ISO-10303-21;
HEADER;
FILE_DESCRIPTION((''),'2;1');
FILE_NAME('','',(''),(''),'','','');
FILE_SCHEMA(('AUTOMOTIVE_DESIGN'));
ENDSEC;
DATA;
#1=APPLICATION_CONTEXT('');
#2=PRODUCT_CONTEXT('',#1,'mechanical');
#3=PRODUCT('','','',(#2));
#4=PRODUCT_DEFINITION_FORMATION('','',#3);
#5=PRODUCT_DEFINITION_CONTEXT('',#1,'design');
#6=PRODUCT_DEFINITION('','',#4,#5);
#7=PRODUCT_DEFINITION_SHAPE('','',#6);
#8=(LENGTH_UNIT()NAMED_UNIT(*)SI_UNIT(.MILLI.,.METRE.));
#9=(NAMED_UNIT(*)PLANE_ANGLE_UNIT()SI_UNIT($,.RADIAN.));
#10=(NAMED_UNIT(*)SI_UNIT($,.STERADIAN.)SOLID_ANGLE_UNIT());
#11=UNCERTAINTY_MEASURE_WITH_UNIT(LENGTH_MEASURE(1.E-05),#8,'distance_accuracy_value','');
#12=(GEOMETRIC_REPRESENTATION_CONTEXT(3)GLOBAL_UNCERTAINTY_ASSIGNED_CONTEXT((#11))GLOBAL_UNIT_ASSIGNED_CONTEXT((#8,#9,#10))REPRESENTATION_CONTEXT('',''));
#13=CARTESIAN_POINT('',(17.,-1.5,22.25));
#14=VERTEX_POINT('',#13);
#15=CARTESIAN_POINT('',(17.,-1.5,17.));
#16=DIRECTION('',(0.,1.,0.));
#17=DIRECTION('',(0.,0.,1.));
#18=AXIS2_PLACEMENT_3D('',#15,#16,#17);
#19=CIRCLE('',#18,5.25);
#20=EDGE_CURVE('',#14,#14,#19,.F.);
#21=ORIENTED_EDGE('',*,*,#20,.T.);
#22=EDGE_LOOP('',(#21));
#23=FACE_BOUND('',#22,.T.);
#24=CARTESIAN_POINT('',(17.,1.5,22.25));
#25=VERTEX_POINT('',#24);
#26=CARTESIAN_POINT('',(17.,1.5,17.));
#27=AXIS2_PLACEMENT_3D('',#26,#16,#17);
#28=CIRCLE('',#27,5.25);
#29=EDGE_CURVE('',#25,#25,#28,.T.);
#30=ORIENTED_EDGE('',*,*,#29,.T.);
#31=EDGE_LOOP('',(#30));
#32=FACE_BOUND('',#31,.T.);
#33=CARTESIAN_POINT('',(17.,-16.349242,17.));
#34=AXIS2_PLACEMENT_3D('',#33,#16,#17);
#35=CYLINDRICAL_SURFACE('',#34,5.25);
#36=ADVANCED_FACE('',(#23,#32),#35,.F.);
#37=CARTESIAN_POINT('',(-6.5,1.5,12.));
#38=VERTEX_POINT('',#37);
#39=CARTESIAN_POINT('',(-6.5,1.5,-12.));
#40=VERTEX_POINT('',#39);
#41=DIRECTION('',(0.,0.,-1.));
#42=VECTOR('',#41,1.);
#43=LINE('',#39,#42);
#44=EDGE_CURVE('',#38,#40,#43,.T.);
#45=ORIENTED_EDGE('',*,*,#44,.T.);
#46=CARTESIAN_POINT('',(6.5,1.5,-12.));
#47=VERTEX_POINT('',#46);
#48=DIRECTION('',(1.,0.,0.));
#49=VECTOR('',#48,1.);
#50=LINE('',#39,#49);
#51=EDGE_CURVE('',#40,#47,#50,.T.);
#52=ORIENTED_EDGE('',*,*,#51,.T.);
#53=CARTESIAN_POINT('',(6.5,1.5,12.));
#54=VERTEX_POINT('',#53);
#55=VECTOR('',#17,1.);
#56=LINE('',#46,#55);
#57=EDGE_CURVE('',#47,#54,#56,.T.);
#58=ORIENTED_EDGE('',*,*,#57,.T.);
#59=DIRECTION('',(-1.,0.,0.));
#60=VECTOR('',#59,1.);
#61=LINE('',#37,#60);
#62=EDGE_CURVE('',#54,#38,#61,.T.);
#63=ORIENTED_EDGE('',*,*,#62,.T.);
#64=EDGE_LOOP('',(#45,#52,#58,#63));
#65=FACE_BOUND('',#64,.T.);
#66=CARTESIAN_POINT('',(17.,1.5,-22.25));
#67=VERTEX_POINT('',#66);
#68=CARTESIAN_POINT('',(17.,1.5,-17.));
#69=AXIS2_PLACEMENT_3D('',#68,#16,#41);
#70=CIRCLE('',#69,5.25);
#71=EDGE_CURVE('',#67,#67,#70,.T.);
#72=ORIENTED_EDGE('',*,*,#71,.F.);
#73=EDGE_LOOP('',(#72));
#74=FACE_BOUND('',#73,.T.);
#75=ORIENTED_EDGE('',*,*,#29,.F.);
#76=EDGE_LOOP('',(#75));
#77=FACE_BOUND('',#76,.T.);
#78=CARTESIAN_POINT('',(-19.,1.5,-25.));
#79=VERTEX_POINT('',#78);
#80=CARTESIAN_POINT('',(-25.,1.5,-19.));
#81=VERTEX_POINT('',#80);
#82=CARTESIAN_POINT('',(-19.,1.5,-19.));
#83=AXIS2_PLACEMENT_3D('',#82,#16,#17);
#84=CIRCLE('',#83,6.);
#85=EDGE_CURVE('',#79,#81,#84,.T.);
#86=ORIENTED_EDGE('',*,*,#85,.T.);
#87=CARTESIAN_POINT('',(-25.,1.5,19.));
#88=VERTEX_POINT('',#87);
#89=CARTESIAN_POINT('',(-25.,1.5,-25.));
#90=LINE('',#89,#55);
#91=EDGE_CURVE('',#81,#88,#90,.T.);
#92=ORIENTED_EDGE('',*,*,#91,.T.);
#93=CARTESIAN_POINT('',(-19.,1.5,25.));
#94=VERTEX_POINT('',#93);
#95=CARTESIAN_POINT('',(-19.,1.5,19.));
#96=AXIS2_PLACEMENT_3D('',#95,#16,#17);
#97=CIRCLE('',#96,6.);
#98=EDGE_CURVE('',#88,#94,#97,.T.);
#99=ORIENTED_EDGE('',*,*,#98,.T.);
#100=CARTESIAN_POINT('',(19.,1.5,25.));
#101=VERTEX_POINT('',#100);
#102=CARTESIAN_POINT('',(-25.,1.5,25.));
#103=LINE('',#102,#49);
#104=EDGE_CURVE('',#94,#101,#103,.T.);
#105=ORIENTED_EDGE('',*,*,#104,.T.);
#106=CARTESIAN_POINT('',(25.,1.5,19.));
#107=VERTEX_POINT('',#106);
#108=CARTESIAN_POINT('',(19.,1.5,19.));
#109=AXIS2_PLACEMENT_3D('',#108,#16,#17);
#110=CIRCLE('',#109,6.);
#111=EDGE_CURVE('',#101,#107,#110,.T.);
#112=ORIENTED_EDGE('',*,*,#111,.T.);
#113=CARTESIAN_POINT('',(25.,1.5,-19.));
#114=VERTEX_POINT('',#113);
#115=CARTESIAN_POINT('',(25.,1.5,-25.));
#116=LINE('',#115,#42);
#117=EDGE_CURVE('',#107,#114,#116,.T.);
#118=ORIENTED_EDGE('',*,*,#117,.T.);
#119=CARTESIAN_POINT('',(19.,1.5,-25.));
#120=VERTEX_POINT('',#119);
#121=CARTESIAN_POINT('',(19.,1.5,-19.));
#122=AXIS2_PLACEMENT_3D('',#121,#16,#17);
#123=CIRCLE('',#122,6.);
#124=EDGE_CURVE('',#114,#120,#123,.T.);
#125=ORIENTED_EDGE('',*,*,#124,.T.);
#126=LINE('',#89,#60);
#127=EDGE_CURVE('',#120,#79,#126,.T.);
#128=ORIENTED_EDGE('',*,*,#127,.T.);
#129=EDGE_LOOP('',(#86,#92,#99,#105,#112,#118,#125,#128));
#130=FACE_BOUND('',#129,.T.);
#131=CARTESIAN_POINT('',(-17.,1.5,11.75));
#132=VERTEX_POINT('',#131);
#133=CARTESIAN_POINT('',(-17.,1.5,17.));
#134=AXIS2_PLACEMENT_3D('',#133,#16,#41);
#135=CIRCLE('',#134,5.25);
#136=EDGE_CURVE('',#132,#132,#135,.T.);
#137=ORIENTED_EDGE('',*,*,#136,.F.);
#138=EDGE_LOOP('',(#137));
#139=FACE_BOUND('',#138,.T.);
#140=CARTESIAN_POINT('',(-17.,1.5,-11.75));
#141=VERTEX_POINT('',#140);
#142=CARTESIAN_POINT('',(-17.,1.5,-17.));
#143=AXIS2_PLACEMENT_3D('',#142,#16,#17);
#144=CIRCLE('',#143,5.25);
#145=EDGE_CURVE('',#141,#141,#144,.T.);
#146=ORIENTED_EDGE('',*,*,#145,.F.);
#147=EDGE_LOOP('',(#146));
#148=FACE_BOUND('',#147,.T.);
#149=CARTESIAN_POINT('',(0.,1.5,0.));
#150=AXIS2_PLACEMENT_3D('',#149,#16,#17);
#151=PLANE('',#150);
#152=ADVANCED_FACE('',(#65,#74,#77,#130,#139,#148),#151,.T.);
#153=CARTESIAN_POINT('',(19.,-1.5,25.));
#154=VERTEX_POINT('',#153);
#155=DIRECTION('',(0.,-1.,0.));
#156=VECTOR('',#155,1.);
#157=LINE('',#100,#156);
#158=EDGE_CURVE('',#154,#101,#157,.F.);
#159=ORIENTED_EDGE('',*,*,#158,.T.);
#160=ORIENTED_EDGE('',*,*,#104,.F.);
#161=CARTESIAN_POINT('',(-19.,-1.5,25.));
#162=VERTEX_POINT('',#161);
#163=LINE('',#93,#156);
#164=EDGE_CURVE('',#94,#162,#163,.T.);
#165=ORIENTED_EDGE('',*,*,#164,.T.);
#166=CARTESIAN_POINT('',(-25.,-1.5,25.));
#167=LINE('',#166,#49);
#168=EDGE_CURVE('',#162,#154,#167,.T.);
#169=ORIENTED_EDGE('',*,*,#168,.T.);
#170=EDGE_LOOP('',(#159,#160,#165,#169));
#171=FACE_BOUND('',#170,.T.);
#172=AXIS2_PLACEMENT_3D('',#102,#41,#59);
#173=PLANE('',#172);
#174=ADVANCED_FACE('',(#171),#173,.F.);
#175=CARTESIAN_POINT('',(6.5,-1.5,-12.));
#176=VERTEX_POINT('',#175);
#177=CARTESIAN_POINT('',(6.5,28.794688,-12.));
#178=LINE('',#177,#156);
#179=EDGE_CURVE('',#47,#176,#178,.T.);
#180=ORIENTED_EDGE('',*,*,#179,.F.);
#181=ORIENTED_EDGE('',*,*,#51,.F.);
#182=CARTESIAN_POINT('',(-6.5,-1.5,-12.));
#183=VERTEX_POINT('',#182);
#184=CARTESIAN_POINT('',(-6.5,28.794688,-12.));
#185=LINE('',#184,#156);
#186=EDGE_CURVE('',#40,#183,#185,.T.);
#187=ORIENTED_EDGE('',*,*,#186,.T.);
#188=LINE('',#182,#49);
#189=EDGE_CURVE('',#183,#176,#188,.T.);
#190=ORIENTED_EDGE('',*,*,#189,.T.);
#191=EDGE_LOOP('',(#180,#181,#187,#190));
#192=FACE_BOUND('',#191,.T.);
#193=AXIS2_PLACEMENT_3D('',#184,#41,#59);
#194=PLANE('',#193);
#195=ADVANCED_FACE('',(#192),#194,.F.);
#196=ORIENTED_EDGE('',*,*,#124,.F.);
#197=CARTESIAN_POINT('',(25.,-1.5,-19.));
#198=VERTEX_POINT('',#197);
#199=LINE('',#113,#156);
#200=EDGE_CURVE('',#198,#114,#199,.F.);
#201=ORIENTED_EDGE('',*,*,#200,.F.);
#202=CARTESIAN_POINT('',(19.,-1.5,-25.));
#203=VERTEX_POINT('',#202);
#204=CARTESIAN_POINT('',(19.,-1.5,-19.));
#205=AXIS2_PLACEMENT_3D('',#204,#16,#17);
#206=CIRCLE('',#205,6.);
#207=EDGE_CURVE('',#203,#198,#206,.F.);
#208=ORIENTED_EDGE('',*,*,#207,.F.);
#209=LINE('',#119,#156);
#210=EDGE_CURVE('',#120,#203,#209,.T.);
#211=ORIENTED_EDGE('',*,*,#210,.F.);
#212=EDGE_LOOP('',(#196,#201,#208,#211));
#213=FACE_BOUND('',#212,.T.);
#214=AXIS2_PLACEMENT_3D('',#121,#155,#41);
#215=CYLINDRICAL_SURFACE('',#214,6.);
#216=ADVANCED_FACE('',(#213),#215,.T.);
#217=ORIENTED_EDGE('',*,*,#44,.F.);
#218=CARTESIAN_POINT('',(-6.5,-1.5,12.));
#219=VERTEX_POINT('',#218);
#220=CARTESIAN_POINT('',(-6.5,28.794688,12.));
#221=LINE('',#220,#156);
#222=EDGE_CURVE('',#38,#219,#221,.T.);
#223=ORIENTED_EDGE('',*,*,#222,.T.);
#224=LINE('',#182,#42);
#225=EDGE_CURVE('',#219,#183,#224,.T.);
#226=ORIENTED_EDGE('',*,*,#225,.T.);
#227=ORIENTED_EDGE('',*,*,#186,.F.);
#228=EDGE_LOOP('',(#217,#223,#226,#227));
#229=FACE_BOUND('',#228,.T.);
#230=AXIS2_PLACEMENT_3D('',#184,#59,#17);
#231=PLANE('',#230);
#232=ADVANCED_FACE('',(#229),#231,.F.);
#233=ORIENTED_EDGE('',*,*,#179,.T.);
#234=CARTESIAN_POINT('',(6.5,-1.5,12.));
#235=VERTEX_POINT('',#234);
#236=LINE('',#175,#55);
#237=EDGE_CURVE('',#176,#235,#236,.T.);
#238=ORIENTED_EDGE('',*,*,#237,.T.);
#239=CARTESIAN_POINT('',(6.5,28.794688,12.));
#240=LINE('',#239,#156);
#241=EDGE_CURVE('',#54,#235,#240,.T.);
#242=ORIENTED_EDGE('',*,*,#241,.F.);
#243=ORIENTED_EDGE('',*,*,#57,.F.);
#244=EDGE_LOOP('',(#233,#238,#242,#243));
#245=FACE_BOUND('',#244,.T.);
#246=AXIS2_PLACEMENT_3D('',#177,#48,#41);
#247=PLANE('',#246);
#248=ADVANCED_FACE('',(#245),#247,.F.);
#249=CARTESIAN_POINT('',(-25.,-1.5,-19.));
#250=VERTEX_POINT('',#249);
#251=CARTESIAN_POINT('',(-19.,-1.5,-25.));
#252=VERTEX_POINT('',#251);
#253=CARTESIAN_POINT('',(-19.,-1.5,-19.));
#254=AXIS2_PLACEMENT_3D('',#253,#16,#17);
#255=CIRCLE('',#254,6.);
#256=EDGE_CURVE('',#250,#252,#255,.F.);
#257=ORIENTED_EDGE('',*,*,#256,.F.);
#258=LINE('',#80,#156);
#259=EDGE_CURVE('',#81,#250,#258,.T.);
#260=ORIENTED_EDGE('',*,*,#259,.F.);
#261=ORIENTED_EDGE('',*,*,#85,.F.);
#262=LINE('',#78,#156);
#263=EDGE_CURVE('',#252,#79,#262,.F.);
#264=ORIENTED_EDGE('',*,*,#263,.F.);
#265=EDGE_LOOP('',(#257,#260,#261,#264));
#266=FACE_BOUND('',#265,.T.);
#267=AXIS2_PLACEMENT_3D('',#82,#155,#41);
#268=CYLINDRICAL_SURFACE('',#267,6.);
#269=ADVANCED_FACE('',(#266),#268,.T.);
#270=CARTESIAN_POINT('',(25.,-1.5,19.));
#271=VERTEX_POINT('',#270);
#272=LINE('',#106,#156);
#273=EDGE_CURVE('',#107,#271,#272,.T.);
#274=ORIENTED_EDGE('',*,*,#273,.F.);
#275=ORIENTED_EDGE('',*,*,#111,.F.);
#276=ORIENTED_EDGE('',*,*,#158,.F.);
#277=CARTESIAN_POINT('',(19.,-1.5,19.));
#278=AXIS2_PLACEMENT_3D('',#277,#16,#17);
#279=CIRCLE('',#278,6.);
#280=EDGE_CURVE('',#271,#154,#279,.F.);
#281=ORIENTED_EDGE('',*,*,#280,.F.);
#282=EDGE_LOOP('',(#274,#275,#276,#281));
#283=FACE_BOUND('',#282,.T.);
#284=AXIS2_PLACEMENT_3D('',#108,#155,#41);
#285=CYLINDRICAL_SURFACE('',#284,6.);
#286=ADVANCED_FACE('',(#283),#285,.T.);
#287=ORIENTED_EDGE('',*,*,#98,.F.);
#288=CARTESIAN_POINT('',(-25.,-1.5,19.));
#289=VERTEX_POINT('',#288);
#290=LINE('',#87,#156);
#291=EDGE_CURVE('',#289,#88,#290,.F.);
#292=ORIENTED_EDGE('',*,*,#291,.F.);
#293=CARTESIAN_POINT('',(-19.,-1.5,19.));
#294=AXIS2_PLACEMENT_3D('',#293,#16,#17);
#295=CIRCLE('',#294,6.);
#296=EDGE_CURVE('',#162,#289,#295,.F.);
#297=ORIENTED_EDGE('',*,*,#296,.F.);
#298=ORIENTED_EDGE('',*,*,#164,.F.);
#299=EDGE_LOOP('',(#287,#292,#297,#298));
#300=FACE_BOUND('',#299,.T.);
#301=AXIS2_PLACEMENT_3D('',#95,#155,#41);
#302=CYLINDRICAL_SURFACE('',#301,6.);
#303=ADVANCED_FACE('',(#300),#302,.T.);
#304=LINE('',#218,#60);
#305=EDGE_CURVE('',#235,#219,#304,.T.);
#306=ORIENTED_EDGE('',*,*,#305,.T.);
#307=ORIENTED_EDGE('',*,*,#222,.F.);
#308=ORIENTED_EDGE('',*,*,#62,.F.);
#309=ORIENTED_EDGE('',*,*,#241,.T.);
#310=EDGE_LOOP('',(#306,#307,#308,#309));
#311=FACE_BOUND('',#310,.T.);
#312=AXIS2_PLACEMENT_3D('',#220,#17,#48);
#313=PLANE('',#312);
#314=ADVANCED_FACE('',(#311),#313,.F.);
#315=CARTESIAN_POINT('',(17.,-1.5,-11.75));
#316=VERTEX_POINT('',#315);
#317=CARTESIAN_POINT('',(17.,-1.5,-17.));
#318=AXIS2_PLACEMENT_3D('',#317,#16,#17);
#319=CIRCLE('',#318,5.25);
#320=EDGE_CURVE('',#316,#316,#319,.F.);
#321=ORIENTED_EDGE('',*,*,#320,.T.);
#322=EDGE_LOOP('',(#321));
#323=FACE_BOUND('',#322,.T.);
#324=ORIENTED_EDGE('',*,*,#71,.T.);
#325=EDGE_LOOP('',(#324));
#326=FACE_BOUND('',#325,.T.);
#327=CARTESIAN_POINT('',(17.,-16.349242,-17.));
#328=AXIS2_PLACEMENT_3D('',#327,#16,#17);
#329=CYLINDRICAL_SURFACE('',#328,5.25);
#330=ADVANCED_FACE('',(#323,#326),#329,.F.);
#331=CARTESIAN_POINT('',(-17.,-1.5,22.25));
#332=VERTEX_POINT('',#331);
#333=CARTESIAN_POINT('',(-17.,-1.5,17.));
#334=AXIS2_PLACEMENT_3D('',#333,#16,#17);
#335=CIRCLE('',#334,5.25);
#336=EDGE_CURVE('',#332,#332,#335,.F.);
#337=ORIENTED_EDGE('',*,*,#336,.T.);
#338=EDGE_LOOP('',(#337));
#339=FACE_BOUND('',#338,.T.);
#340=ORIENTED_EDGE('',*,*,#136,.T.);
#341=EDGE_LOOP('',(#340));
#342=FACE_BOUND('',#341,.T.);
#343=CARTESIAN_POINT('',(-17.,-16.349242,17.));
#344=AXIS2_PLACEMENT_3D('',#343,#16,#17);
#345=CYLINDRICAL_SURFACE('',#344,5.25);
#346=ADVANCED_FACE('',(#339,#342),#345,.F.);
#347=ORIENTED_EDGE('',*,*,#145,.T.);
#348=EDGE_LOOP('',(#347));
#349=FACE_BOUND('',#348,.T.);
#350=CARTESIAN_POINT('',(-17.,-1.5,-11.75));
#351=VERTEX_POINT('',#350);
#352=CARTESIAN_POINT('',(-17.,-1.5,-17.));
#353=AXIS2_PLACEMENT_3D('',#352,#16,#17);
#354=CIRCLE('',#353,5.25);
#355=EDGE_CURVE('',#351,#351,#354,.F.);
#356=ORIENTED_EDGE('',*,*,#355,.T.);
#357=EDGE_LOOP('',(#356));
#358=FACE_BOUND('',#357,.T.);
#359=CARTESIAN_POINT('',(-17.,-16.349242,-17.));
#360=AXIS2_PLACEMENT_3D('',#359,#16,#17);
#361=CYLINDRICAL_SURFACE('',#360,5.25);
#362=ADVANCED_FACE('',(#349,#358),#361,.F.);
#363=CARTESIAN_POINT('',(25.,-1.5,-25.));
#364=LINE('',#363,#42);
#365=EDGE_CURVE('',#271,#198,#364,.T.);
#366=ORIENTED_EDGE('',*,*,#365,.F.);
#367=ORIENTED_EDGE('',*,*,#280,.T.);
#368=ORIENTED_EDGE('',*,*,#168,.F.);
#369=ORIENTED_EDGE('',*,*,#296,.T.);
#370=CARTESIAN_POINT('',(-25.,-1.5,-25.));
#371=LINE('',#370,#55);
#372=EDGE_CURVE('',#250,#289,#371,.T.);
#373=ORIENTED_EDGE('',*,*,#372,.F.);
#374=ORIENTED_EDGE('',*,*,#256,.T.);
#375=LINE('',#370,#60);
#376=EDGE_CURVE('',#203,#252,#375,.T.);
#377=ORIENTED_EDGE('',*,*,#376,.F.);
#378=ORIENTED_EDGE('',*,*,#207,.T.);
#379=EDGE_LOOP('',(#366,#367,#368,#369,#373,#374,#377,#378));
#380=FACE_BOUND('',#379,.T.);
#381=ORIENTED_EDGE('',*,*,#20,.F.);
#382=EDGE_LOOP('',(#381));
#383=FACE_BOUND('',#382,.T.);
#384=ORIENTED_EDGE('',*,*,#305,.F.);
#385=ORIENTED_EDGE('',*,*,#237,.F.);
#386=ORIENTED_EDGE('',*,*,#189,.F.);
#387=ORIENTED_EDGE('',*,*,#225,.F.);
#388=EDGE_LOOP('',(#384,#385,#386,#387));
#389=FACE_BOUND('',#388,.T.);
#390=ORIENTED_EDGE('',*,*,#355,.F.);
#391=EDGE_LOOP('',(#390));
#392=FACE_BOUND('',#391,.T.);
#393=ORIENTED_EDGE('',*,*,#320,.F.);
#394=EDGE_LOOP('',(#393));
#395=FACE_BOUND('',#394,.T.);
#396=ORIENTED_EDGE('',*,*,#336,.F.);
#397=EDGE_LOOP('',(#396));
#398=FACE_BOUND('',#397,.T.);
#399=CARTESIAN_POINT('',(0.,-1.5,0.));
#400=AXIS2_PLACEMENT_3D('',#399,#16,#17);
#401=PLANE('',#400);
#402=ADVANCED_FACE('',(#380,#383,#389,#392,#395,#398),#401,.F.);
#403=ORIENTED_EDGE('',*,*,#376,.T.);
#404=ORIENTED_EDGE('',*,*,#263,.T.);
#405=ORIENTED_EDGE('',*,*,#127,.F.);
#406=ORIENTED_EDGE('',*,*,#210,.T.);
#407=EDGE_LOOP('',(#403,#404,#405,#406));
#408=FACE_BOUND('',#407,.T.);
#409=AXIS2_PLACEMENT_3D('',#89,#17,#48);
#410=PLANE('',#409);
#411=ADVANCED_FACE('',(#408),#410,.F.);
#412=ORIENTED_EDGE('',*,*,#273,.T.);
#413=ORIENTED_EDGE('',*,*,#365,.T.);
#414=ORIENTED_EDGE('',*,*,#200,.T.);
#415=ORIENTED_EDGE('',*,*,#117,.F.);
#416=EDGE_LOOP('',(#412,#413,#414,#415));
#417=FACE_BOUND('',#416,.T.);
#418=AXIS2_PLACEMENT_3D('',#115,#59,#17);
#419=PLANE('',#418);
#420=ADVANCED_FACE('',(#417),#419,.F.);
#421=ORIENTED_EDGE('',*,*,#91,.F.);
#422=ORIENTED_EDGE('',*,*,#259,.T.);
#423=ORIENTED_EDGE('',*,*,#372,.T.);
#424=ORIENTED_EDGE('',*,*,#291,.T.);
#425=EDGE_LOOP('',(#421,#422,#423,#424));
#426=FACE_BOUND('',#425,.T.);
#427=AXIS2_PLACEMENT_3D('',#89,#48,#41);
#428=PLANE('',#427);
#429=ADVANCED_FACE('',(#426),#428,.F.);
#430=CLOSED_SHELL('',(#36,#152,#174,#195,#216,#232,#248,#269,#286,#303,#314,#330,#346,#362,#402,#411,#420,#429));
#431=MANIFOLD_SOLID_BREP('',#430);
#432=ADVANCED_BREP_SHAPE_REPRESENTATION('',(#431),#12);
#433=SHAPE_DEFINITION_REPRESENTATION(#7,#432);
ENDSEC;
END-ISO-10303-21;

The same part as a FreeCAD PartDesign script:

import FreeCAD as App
import Part
import Sketcher

V = App.Vector


def edges_at(feature, points):
    """Names of the edges that pass closest to the given points."""
    edges = feature.Shape.Edges
    near = lambda p: min(range(len(edges)), key=lambda i: edges[i].distToShape(Part.Vertex(*p))[0])
    return sorted({f"Edge{near(p) + 1}" for p in points})

doc = App.newDocument("Part")
body = doc.addObject("PartDesign::Body", "Body")

# Sketch on XZ plane
sketch1 = body.newObject("Sketcher::SketchObject", "Sketch")
sketch1.AttachmentSupport = (doc.getObject("XZ_Plane"), [""])
sketch1.MapMode = "FlatFace"
sketch1.addGeometry(Part.LineSegment(V(-25, -25, 0), V(-25, 25, 0)), False)
sketch1.addGeometry(Part.LineSegment(V(-25, 25, 0), V(25, 25, 0)), False)
sketch1.addGeometry(Part.LineSegment(V(25, 25, 0), V(25, -25, 0)), False)
sketch1.addGeometry(Part.LineSegment(V(25, -25, 0), V(-25, -25, 0)), False)
sketch1.addConstraint(Sketcher.Constraint("Coincident", 0, 2, 1, 1))
sketch1.addConstraint(Sketcher.Constraint("Coincident", 1, 2, 2, 1))
sketch1.addConstraint(Sketcher.Constraint("Coincident", 2, 2, 3, 1))
sketch1.addConstraint(Sketcher.Constraint("Coincident", 3, 2, 0, 1))
sketch1.addConstraint(Sketcher.Constraint("Vertical", 0))
sketch1.addConstraint(Sketcher.Constraint("Horizontal", 1))
sketch1.addConstraint(Sketcher.Constraint("Vertical", 2))
sketch1.addConstraint(Sketcher.Constraint("Horizontal", 3))
sketch1.addConstraint(Sketcher.Constraint("Symmetric", 0, 2, 2, 2, -1, 1))
sketch1.addConstraint(Sketcher.Constraint("Equal", 3, 0))
sketch1.addConstraint(Sketcher.Constraint("DistanceX", 1, 1, 1, 2, 50.0))
pad1 = body.newObject("PartDesign::Pad", "Pad")
pad1.Profile = sketch1
pad1.Length = 3
pad1.Midplane = True

# Sketch on XZ plane
sketch2 = body.newObject("Sketcher::SketchObject", "Sketch001")
sketch2.AttachmentSupport = (doc.getObject("XZ_Plane"), [""])
sketch2.MapMode = "FlatFace"
sketch2.AttachmentOffset = App.Placement(V(0, 0, -1.5), App.Rotation())
sketch2.addGeometry(Part.Circle(V(17, 17, 0), V(0, 0, 1), 5), False)
sketch2.addGeometry(Part.Circle(V(-17, 17, 0), V(0, 0, 1), 5), False)
sketch2.addGeometry(Part.Circle(V(-17, -17, 0), V(0, 0, 1), 5), False)
sketch2.addGeometry(Part.Circle(V(17, -17, 0), V(0, 0, 1), 5), False)
sketch2.addConstraint(Sketcher.Constraint("Equal", 0, 1))
sketch2.addConstraint(Sketcher.Constraint("Equal", 1, 2))
sketch2.addConstraint(Sketcher.Constraint("Equal", 2, 3))
sketch2.addConstraint(Sketcher.Constraint("Symmetric", 0, 3, 2, 3, -1, 1))
sketch2.addConstraint(Sketcher.Constraint("Symmetric", 1, 3, 3, 3, -1, 1))
sketch2.addConstraint(Sketcher.Constraint("Symmetric", 0, 3, 1, 3, -2))
sketch2.addConstraint(Sketcher.Constraint("Diameter", 0, 10.5))
sketch2.addConstraint(Sketcher.Constraint("DistanceX", -1, 1, 0, 3, 17.0))
sketch2.addConstraint(Sketcher.Constraint("DistanceY", -1, 1, 0, 3, 17.0))
pocket1 = body.newObject("PartDesign::Pocket", "Pocket")
pocket1.Profile = sketch2
pocket1.Length = 3
pocket1.Reversed = True
doc.recompute()

fillet = body.newObject("PartDesign::Fillet", "Fillet")
fillet.Base = (pocket1, edges_at(pocket1, [
    (25, 0, 25),
    (-25, 0, 25),
    (-25, 0, -25),
    (25, 0, -25),
]))
fillet.Radius = 6

# Sketch on XZ plane
sketch3 = body.newObject("Sketcher::SketchObject", "Sketch002")
sketch3.AttachmentSupport = (doc.getObject("XZ_Plane"), [""])
sketch3.MapMode = "FlatFace"
sketch3.AttachmentOffset = App.Placement(V(0, 0, 1.5), App.Rotation())
sketch3.addGeometry(Part.LineSegment(V(-6, 12, 0), V(-6, -12, 0)), False)
sketch3.addGeometry(Part.LineSegment(V(-6, -12, 0), V(6, -12, 0)), False)
sketch3.addGeometry(Part.LineSegment(V(6, -12, 0), V(6, 12, 0)), False)
sketch3.addGeometry(Part.LineSegment(V(6, 12, 0), V(-6, 12, 0)), False)
sketch3.addConstraint(Sketcher.Constraint("Coincident", 0, 2, 1, 1))
sketch3.addConstraint(Sketcher.Constraint("Coincident", 1, 2, 2, 1))
sketch3.addConstraint(Sketcher.Constraint("Coincident", 2, 2, 3, 1))
sketch3.addConstraint(Sketcher.Constraint("Coincident", 3, 2, 0, 1))
sketch3.addConstraint(Sketcher.Constraint("Vertical", 0))
sketch3.addConstraint(Sketcher.Constraint("Horizontal", 1))
sketch3.addConstraint(Sketcher.Constraint("Vertical", 2))
sketch3.addConstraint(Sketcher.Constraint("Horizontal", 3))
sketch3.addConstraint(Sketcher.Constraint("Symmetric", 0, 2, 2, 2, -1, 1))
sketch3.addConstraint(Sketcher.Constraint("DistanceX", 1, 1, 1, 2, 13.0))
sketch3.addConstraint(Sketcher.Constraint("DistanceY", 0, 2, 0, 1, 24.0))
pocket2 = body.newObject("PartDesign::Pocket", "Pocket001")
pocket2.Profile = sketch3
pocket2.Length = 3

doc.recompute()
